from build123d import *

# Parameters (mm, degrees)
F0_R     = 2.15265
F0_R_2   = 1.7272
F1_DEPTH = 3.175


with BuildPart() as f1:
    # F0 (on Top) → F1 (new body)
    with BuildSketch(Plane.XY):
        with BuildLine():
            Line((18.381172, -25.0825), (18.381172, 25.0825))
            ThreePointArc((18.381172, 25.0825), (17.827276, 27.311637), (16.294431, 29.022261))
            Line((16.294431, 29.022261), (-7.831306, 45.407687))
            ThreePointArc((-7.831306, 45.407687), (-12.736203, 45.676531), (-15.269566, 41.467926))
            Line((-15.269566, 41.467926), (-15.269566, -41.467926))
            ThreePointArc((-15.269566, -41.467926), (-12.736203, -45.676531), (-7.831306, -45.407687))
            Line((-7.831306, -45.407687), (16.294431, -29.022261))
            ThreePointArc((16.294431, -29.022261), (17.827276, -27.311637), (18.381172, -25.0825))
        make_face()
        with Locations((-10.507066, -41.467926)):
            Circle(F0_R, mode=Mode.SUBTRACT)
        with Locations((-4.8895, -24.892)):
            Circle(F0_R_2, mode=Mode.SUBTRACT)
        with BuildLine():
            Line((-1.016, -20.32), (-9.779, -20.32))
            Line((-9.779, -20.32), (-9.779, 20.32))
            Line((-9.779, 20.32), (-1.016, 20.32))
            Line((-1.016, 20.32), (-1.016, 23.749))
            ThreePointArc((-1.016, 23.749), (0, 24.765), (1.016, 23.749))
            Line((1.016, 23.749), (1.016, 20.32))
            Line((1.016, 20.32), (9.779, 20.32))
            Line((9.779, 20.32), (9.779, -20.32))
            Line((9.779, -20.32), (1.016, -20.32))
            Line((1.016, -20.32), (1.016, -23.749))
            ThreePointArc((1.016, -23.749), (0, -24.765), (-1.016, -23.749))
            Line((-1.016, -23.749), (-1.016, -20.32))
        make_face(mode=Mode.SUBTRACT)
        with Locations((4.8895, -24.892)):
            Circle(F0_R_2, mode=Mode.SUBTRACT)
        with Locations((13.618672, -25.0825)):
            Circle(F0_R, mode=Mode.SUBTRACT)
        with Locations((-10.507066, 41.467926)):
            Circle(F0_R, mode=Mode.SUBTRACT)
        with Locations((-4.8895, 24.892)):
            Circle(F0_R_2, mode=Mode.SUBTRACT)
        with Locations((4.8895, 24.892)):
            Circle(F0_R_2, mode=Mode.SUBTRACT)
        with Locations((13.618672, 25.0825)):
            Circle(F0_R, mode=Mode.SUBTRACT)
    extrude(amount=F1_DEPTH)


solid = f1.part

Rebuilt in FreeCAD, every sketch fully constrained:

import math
import FreeCAD as App
import Part
import Sketcher
Q = App.Units.Quantity

doc = App.newDocument("Part")
body = doc.addObject("PartDesign::Body", "Body")

# Sketch on XY plane
sketch1 = doc.addObject("Sketcher::SketchObject", "Sketch")
body.addObject(sketch1)
sketch1.AttachmentSupport = (doc.XY_Plane, [""])
sketch1.MapMode = "FlatFace"
sketch1.addGeometry([
    Part.LineSegment(App.Vector(18.4, -25.1, 0), App.Vector(18.4, 25.1, 0)),  # 0
    Part.ArcOfCircle(Part.Circle(App.Vector(13.6, 25.1, 0), App.Vector(0, 0, 1), 4.8), math.radians(0), math.radians(56)),  # 1
    Part.LineSegment(App.Vector(16.3, 29, 0), App.Vector(-7.8, 45.4, 0)),  # 2
    Part.ArcOfCircle(Part.Circle(App.Vector(-10.5, 41.5, 0), App.Vector(0, 0, 1), 4.8), math.radians(56), math.radians(180)),  # 3
    Part.LineSegment(App.Vector(-15.3, 41.5, 0), App.Vector(-15.3, -41.5, 0)),  # 4
    Part.ArcOfCircle(Part.Circle(App.Vector(-10.5, -41.5, 0), App.Vector(0, 0, 1), 4.8), math.radians(180), math.radians(304)),  # 5
    Part.LineSegment(App.Vector(-7.8, -45.4, 0), App.Vector(16.3, -29, 0)),  # 6
    Part.ArcOfCircle(Part.Circle(App.Vector(13.6, -25.1, 0), App.Vector(0, 0, 1), 4.8), math.radians(-56), math.radians(0)),  # 7
    Part.Circle(App.Vector(-10.5, -41.5, 0), App.Vector(0, 0, 1), 2.2),  # 8
    Part.Circle(App.Vector(-4.9, -24.9, 0), App.Vector(0, 0, 1), 1.7),  # 9
    Part.Circle(App.Vector(4.9, -24.9, 0), App.Vector(0, 0, 1), 1.7),  # 10
    Part.Circle(App.Vector(13.6, -25.1, 0), App.Vector(0, 0, 1), 2.2),  # 11
    Part.LineSegment(App.Vector(-1, -23.7, 0), App.Vector(-1, -20.3, 0)),  # 12
    Part.LineSegment(App.Vector(-1, -20.3, 0), App.Vector(-9.8, -20.3, 0)),  # 13
    Part.LineSegment(App.Vector(-9.8, -20.3, 0), App.Vector(-9.8, 20.3, 0)),  # 14
    Part.LineSegment(App.Vector(-9.8, 20.3, 0), App.Vector(-1, 20.3, 0)),  # 15
    Part.LineSegment(App.Vector(-1, 20.3, 0), App.Vector(-1, 23.7, 0)),  # 16
    Part.ArcOfCircle(Part.Circle(App.Vector(0, 23.7, 0), App.Vector(0, 0, 1), 1), math.radians(0), math.radians(180)),  # 17
    Part.LineSegment(App.Vector(1, 23.7, 0), App.Vector(1, 20.3, 0)),  # 18
    Part.LineSegment(App.Vector(1, 20.3, 0), App.Vector(9.8, 20.3, 0)),  # 19
    Part.LineSegment(App.Vector(9.8, 20.3, 0), App.Vector(9.8, -20.3, 0)),  # 20
    Part.LineSegment(App.Vector(9.8, -20.3, 0), App.Vector(1, -20.3, 0)),  # 21
    Part.LineSegment(App.Vector(1, -20.3, 0), App.Vector(1, -23.7, 0)),  # 22
    Part.ArcOfCircle(Part.Circle(App.Vector(0, -23.7, 0), App.Vector(0, 0, 1), 1), math.radians(180), math.radians(360)),  # 23
    Part.Circle(App.Vector(-10.5, 41.5, 0), App.Vector(0, 0, 1), 2.2),  # 24
    Part.Circle(App.Vector(-4.9, 24.9, 0), App.Vector(0, 0, 1), 1.7),  # 25
    Part.Circle(App.Vector(4.9, 24.9, 0), App.Vector(0, 0, 1), 1.7),  # 26
    Part.Circle(App.Vector(13.6, 25.1, 0), App.Vector(0, 0, 1), 2.2),  # 27
], False)
sketch1.addConstraint([
    Sketcher.Constraint("Tangent", 0, 2, 1, 1),
    Sketcher.Constraint("Tangent", 1, 2, 2, 1),
    Sketcher.Constraint("Tangent", 2, 2, 3, 1),
    Sketcher.Constraint("Tangent", 3, 2, 4, 1),
    Sketcher.Constraint("Tangent", 4, 2, 5, 1),
    Sketcher.Constraint("Tangent", 5, 2, 6, 1),
    Sketcher.Constraint("Tangent", 6, 2, 7, 1),
    Sketcher.Constraint("Tangent", 7, 2, 0, 1),
    Sketcher.Constraint("Coincident", 12, 2, 13, 1),
    Sketcher.Constraint("Coincident", 13, 2, 14, 1),
    Sketcher.Constraint("Coincident", 14, 2, 15, 1),
    Sketcher.Constraint("Coincident", 15, 2, 16, 1),
    Sketcher.Constraint("Tangent", 16, 2, 17, 2),
    Sketcher.Constraint("Tangent", 17, 1, 18, 1),
    Sketcher.Constraint("Coincident", 18, 2, 19, 1),
    Sketcher.Constraint("Coincident", 19, 2, 20, 1),
    Sketcher.Constraint("Coincident", 20, 2, 21, 1),
    Sketcher.Constraint("Coincident", 21, 2, 22, 1),
    Sketcher.Constraint("Tangent", 22, 2, 23, 2),
    Sketcher.Constraint("Tangent", 23, 1, 12, 1),
    Sketcher.Constraint("Vertical", 0),
    Sketcher.Constraint("Vertical", 4),
    Sketcher.Constraint("Vertical", 12),
    Sketcher.Constraint("Horizontal", 13),
    Sketcher.Constraint("Vertical", 14),
    Sketcher.Constraint("Horizontal", 15),
    Sketcher.Constraint("Vertical", 16),
    Sketcher.Constraint("Vertical", 18),
    Sketcher.Constraint("Horizontal", 19),
    Sketcher.Constraint("Vertical", 20),
    Sketcher.Constraint("Horizontal", 21),
    Sketcher.Constraint("Vertical", 22),
    Sketcher.Constraint("Coincident", 8, 3, 5, 3),
    Sketcher.Constraint("Coincident", 11, 3, 7, 3),
    Sketcher.Constraint("Coincident", 24, 3, 3, 3),
    Sketcher.Constraint("Coincident", 27, 3, 1, 3),
    Sketcher.Constraint("Equal", 3, 5),
    Sketcher.Constraint("Equal", 1, 7),
    Sketcher.Constraint("Equal", 9, 10),
    Sketcher.Constraint("Equal", 8, 11),
    Sketcher.Constraint("Equal", 17, 23),
    Sketcher.Constraint("Equal", 11, 24),
    Sketcher.Constraint("Equal", 10, 25),
    Sketcher.Constraint("Equal", 25, 26),
    Sketcher.Constraint("Equal", 24, 27),
    Sketcher.Constraint("Symmetric", 17, 3, 23, 3, -1, 1),
    Sketcher.Constraint("Symmetric", 10, 3, 25, 3, -1, 1),
    Sketcher.Constraint("Symmetric", 9, 3, 26, 3, -1, 1),
    Sketcher.Constraint("Symmetric", 13, 2, 19, 2, -1, 1),
    Sketcher.Constraint("Symmetric", 9, 3, 10, 3, -2),
    Sketcher.Constraint("Symmetric", 15, 2, 18, 2, -2),
    Sketcher.Constraint("Symmetric", 2, 2, 5, 2, -1),
    Sketcher.Constraint("Horizontal", 13, 2, 20, 2),
    Sketcher.Constraint("Radius", 17, Q("0.04 in")),
    Sketcher.Constraint("Diameter", 9, Q("0.136 in")),
    Sketcher.Constraint("DistanceY", 14, 1, 14, 2, Q("1.6 in")),
    Sketcher.Constraint("Radius", 3, Q("0.1875 in")),
    Sketcher.Constraint("Diameter", 8, Q("0.1695 in")),
    Sketcher.Constraint("Radius", 1, Q("0.1875002 in")),
    Sketcher.Constraint("DistanceX", 13, 2, 13, 1, Q("0.345 in")),
    Sketcher.Constraint("DistanceY", 0, 1, 0, 2, Q("1.975 in")),
    Sketcher.Constraint("DistanceY", 12, 1, 12, 2, Q("0.135 in")),
    Sketcher.Constraint("DistanceY", 9, 3, -1, 1, Q("0.98 in")),
    Sketcher.Constraint("DistanceX", 9, 3, 10, 3, Q("0.385 in")),
    Sketcher.Constraint("DistanceY", 4, 2, 4, 1, 82.935852),
    Sketcher.Constraint("DistanceX", -1, 1, 1, 3, 13.618668),
    Sketcher.Constraint("DistanceX", -1, 1, 1, 2, 16.294431),
])
pad1 = doc.addObject("PartDesign::Pad", "Pad")
body.addObject(pad1)
pad1.Profile = sketch1
pad1.Length = Q("0.125 in")

doc.recompute()
